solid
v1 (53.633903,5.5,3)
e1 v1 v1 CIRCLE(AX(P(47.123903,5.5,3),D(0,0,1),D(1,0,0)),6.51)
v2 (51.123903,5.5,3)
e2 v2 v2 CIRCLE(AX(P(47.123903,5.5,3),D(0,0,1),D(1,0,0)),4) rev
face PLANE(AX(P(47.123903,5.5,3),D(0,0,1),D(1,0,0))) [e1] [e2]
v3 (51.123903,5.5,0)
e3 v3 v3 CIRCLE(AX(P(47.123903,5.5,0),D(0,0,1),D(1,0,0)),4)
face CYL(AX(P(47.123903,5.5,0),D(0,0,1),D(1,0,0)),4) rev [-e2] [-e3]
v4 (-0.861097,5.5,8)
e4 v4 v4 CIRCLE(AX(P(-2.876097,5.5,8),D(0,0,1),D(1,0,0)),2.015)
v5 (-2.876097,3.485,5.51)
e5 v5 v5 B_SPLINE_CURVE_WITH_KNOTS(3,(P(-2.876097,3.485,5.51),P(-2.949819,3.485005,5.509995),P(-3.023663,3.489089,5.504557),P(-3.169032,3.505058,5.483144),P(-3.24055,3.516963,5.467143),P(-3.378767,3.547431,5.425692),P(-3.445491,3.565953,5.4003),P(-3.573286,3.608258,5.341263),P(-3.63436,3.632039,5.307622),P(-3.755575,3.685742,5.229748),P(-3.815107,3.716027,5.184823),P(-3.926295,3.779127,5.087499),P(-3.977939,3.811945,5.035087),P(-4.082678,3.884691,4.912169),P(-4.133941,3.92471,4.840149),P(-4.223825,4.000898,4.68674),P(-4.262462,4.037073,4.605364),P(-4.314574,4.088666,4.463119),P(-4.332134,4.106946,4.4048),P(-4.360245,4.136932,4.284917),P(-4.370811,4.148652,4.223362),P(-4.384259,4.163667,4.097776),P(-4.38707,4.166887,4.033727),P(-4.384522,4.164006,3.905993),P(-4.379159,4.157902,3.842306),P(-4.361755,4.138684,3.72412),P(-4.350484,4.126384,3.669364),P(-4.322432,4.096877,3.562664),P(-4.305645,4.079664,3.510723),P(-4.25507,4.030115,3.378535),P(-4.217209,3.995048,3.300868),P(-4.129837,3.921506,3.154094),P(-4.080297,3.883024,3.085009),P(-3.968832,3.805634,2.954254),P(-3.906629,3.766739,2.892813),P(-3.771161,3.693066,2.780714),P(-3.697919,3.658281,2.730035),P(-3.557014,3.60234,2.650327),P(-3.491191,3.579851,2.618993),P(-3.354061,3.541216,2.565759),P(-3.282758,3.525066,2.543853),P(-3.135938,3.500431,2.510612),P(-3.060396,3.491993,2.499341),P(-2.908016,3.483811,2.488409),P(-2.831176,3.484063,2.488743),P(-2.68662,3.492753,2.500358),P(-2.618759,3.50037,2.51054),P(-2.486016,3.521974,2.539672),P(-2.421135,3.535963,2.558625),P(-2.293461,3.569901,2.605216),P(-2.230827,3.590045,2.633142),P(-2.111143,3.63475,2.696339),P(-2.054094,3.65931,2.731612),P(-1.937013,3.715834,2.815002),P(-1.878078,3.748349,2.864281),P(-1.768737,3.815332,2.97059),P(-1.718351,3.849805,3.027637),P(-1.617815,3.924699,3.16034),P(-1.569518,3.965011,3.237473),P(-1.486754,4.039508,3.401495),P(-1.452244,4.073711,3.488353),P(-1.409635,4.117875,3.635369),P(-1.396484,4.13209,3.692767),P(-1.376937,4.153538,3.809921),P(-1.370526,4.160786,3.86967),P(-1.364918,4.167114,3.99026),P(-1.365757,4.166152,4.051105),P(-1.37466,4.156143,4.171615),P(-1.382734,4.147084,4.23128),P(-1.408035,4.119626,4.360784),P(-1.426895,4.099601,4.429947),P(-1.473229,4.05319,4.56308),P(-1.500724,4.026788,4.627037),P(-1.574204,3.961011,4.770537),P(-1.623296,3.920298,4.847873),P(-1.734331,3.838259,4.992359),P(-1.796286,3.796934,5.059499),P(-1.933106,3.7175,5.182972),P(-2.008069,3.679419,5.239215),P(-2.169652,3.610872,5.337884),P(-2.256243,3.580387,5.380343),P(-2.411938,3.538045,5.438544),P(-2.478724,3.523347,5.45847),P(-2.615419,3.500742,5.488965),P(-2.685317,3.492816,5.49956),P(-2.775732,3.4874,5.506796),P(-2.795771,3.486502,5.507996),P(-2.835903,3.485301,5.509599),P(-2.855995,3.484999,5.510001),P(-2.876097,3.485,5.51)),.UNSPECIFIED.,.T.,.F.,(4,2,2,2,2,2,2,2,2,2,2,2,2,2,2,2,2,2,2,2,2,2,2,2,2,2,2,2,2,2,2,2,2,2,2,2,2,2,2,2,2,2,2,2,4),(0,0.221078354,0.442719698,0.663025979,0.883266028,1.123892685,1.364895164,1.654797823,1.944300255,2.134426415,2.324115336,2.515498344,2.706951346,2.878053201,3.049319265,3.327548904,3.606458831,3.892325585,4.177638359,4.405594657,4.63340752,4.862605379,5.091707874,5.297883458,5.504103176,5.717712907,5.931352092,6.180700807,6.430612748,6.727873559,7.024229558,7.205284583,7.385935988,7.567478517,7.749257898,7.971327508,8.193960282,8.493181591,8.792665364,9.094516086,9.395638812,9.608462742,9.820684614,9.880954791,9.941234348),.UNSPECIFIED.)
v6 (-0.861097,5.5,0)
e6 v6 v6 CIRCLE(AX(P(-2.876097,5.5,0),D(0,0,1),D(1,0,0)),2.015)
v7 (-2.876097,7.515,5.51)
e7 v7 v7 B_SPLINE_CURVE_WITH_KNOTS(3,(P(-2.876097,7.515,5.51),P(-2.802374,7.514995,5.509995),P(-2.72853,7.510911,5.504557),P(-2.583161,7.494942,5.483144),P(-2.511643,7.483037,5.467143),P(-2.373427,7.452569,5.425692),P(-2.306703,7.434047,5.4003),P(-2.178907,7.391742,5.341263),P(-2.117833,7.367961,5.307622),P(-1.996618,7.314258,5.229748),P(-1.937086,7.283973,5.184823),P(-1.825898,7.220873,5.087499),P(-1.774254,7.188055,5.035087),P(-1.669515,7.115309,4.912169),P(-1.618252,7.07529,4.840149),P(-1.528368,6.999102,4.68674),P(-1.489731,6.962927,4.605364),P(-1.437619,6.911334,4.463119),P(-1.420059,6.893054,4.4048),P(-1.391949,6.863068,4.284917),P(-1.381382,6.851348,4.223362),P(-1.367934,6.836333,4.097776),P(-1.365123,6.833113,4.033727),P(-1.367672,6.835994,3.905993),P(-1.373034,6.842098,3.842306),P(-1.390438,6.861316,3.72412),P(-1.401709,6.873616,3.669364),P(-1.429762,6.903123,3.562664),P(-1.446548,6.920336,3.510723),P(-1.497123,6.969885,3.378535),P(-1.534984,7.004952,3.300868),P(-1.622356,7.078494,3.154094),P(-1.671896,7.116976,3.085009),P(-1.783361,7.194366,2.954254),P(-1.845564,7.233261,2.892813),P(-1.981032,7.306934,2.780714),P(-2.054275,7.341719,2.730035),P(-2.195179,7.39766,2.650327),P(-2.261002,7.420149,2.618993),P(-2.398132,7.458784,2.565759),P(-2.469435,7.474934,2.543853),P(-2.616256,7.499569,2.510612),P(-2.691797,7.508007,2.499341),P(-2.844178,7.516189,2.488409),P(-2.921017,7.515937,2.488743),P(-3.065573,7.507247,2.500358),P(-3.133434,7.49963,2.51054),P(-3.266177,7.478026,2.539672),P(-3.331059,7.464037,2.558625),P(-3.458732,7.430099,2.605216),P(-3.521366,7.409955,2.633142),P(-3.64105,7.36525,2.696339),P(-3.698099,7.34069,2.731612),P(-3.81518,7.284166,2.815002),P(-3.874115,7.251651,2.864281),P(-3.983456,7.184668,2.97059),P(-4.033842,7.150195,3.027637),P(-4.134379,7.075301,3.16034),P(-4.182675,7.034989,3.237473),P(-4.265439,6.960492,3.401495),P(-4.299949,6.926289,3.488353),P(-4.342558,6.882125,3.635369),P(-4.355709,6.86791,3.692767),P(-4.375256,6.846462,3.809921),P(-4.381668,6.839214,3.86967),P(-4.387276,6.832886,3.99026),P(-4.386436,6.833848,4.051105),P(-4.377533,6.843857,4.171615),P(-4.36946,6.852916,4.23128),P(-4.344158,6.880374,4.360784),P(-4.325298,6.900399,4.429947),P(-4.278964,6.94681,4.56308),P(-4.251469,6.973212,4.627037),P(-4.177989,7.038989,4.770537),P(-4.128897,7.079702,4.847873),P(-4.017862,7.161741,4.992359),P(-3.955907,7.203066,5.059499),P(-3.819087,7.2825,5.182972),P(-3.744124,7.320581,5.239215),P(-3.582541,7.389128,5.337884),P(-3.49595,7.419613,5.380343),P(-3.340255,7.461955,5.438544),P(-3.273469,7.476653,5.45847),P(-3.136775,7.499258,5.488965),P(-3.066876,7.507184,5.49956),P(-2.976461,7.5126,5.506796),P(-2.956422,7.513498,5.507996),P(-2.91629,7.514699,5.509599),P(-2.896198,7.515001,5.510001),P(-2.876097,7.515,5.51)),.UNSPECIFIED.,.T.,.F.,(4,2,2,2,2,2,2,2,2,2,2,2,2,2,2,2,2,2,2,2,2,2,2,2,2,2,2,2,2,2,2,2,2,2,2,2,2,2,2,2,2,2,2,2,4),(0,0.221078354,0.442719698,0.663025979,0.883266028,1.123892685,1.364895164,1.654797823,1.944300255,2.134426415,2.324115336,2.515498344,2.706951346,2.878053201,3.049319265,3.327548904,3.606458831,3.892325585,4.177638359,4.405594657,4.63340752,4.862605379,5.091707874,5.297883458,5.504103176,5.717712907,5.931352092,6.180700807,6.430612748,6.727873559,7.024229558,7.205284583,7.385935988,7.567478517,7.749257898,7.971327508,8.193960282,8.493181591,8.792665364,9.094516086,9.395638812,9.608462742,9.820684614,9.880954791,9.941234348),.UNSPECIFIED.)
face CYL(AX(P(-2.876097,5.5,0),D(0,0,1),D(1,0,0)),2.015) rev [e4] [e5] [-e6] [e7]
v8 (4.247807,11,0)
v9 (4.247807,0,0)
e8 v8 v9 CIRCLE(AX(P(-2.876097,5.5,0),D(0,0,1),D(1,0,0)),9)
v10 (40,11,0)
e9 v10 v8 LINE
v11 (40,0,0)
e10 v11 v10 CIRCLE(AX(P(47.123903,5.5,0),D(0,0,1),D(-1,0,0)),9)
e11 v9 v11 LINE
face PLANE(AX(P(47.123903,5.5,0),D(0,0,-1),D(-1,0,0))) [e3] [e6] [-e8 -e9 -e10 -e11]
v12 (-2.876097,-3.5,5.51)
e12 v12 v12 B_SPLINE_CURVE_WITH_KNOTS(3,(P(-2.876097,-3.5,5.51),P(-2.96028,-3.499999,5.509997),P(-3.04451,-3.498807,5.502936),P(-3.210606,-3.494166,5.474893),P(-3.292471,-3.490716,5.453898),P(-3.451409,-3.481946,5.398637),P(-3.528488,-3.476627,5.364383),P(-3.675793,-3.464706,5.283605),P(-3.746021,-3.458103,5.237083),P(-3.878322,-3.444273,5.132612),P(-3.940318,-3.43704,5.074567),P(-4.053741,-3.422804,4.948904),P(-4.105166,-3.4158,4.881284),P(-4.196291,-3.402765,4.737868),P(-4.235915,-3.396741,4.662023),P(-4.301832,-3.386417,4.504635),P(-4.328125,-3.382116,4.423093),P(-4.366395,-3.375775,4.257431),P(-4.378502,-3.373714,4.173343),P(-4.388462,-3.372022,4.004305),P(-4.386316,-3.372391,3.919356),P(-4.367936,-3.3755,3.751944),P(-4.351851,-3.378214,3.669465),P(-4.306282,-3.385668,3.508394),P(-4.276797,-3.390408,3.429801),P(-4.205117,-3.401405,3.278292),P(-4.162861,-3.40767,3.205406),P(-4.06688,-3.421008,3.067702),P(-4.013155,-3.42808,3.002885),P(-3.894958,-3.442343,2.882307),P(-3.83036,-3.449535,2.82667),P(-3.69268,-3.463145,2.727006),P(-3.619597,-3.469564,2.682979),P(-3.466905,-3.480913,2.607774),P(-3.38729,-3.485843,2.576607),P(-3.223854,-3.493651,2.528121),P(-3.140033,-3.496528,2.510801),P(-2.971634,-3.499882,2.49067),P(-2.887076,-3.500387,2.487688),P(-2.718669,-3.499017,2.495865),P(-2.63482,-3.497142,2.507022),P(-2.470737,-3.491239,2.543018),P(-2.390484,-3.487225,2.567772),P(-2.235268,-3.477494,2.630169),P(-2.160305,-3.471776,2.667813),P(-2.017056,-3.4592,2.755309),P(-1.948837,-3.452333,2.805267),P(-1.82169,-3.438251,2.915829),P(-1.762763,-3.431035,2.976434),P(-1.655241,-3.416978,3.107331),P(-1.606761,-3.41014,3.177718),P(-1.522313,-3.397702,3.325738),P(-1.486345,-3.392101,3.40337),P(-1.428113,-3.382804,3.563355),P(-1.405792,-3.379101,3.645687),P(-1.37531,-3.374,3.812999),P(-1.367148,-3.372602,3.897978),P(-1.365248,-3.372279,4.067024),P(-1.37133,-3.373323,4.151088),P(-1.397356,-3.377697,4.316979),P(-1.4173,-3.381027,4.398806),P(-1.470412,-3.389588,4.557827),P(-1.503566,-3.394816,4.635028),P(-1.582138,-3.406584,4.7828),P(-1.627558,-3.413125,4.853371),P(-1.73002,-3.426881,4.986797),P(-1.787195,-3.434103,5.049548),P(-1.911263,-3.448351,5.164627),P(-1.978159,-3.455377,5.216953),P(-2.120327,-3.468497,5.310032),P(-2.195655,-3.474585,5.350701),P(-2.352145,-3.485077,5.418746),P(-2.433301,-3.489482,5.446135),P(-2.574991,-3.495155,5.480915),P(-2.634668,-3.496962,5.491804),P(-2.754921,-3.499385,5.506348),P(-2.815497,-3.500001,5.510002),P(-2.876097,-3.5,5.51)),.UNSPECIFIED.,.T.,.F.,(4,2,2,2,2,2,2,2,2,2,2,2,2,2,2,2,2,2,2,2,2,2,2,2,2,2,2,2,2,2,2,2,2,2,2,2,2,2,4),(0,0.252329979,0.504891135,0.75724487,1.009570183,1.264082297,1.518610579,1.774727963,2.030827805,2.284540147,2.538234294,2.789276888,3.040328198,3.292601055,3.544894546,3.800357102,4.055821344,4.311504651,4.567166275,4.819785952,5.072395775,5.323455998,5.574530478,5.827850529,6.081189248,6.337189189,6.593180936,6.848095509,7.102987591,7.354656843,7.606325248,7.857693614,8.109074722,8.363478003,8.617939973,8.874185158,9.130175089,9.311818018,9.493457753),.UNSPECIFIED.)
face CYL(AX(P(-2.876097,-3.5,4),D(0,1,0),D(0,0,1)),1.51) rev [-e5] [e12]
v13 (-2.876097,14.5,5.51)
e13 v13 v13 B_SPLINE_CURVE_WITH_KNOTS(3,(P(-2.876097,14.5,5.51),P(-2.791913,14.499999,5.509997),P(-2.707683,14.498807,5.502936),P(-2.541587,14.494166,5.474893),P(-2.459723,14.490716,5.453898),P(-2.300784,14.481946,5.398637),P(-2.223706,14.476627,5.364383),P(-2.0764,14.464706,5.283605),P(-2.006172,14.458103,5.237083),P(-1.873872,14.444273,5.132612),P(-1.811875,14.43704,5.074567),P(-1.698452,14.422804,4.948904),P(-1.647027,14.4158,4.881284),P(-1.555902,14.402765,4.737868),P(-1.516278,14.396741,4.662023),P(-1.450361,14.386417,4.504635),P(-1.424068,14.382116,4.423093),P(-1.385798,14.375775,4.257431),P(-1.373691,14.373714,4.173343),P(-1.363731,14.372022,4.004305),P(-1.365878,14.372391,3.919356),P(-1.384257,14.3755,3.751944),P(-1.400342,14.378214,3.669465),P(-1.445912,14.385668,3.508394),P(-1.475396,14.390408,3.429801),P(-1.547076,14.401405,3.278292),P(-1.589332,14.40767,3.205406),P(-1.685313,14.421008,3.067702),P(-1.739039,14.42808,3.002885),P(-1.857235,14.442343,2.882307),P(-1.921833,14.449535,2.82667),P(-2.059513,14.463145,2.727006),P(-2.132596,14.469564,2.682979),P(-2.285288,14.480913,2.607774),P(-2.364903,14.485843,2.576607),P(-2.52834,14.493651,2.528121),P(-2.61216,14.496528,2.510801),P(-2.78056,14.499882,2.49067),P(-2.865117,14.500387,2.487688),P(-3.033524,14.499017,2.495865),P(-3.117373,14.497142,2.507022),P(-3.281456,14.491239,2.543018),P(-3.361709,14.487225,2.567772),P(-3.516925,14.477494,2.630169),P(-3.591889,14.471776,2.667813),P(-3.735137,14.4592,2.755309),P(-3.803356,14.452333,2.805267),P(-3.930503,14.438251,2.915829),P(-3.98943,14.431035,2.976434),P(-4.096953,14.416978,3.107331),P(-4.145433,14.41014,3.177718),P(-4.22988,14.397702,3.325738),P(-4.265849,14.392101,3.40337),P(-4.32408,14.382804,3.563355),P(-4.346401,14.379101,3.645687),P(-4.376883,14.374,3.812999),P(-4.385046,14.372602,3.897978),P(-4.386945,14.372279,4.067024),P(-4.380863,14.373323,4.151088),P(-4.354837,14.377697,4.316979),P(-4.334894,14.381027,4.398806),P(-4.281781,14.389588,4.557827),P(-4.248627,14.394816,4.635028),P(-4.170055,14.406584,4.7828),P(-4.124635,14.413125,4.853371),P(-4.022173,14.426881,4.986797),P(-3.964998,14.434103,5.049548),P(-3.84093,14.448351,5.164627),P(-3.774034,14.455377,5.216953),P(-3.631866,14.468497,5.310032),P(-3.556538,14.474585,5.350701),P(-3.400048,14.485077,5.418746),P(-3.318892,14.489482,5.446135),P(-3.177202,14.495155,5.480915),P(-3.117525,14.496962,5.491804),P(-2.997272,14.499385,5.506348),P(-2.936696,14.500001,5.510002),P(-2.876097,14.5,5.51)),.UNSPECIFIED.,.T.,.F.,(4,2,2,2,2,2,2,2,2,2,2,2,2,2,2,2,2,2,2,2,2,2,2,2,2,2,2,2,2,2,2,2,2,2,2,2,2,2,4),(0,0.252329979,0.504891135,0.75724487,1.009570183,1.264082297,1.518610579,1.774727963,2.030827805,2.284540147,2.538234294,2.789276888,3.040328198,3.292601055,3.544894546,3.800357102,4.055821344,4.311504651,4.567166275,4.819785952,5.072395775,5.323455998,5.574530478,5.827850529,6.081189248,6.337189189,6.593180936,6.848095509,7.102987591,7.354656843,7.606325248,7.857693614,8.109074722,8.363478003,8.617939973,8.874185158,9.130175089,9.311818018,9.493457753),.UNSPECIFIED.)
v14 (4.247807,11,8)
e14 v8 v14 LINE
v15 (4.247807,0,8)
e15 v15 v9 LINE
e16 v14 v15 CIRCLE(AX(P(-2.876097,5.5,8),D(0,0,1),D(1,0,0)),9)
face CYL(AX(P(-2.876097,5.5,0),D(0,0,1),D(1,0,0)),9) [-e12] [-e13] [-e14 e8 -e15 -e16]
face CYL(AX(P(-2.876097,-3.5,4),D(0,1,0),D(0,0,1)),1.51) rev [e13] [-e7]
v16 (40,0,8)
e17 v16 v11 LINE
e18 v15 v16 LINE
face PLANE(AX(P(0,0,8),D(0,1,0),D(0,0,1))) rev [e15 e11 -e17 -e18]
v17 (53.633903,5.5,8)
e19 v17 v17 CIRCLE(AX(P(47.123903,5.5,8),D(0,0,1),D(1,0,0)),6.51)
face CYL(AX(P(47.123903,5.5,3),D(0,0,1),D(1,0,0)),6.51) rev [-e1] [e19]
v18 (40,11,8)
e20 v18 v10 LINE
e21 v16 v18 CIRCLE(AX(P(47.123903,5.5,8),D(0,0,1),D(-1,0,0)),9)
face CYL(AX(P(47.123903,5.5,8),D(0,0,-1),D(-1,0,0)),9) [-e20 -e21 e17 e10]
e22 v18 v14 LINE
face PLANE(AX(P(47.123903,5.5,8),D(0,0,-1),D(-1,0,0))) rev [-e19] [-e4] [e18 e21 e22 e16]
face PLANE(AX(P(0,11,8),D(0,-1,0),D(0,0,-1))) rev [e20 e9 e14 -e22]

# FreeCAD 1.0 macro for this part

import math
import FreeCAD as App
import Part
import Sketcher

doc = App.newDocument("Part")
body = doc.addObject("PartDesign::Body", "Body")

# Sketch on XY plane
sketch1 = body.newObject("Sketcher::SketchObject", "Sketch")
sketch1.AttachmentSupport = (doc.getObject("XY_Plane"), [""])
sketch1.MapMode = "FlatFace"
sketch1.addGeometry(Part.LineSegment(App.Vector(0, 0, 0), App.Vector(40, 0, 0)), False)
sketch1.addGeometry(Part.ArcOfCircle(Part.Circle(App.Vector(47.123903, 5.5, 0), App.Vector(0, 0, 1), 9), math.radians(-142.330113), math.radians(142.330113)), False)
sketch1.addGeometry(Part.LineSegment(App.Vector(40, 11, 0), App.Vector(0, 11, 0)), False)
sketch1.addGeometry(Part.LineSegment(App.Vector(0, 11, 0), App.Vector(0, 0, 0)), False)
sketch1.addConstraint(Sketcher.Constraint("Coincident", 0, 2, 1, 1))
sketch1.addConstraint(Sketcher.Constraint("Coincident", 1, 2, 2, 1))
sketch1.addConstraint(Sketcher.Constraint("Coincident", 2, 2, 3, 1))
sketch1.addConstraint(Sketcher.Constraint("Coincident", 3, 2, 0, 1))
sketch1.addConstraint(Sketcher.Constraint("Horizontal", 0))
sketch1.addConstraint(Sketcher.Constraint("Horizontal", 2))
sketch1.addConstraint(Sketcher.Constraint("Vertical", 3))
sketch1.addConstraint(Sketcher.Constraint("Coincident", 3, 2, -1, 1))
sketch1.addConstraint(Sketcher.Constraint("Vertical", 0, 2, 1, 2))
sketch1.addConstraint(Sketcher.Constraint("Radius", 1, 9.0))
sketch1.addConstraint(Sketcher.Constraint("DistanceX", 0, 1, 0, 2, 40.0))
sketch1.addConstraint(Sketcher.Constraint("DistanceY", 3, 2, 3, 1, 11.0))
pad1 = body.newObject("PartDesign::Pad", "Pad")
pad1.Profile = sketch1
pad1.Length = 8

# Sketch on XY plane
sketch2 = body.newObject("Sketcher::SketchObject", "Sketch001")
sketch2.AttachmentSupport = (doc.getObject("XY_Plane"), [""])
sketch2.MapMode = "FlatFace"
sketch2.AttachmentOffset = App.Placement(App.Vector(0, 0, 8), App.Rotation())
sketch2.addGeometry(Part.Circle(App.Vector(47.123903, 5.5, 0), App.Vector(0, 0, 1), 4), False)
sketch2.addConstraint(Sketcher.Constraint("Diameter", 0, 8.0))
sketch2.addConstraint(Sketcher.Constraint("DistanceY", -1, 1, 0, 3, 5.5))
sketch2.addConstraint(Sketcher.Constraint("DistanceX", -1, 1, 0, 3, 47.123903))
pocket1 = body.newObject("PartDesign::Pocket", "Pocket")
pocket1.Profile = sketch2
pocket1.Type = "ThroughAll"

# Sketch on XY plane
sketch3 = body.newObject("Sketcher::SketchObject", "Sketch002")
sketch3.AttachmentSupport = (doc.getObject("XY_Plane"), [""])
sketch3.MapMode = "FlatFace"
sketch3.AttachmentOffset = App.Placement(App.Vector(0, 0, 8), App.Rotation())
sketch3.addGeometry(Part.Circle(App.Vector(47.123903, 5.5, 0), App.Vector(0, 0, 1), 6.51), False)
sketch3.addConstraint(Sketcher.Constraint("Diameter", 0, 13.02))
sketch3.addConstraint(Sketcher.Constraint("DistanceY", -1, 1, 0, 3, 5.5))
sketch3.addConstraint(Sketcher.Constraint("DistanceX", -1, 1, 0, 3, 47.123903))
pocket2 = body.newObject("PartDesign::Pocket", "Pocket001")
pocket2.Profile = sketch3
pocket2.Length = 5

# Sketch on XY plane
sketch4 = body.newObject("Sketcher::SketchObject", "Sketch003")
sketch4.AttachmentSupport = (doc.getObject("XY_Plane"), [""])
sketch4.MapMode = "FlatFace"
sketch4.AttachmentOffset = App.Placement(App.Vector(0, 0, 8), App.Rotation())
sketch4.addGeometry(Part.Circle(App.Vector(-2.876097, 5.5, 0), App.Vector(0, 0, 1), 9), False)
sketch4.addConstraint(Sketcher.Constraint("Diameter", 0, 18.0))
sketch4.addConstraint(Sketcher.Constraint("DistanceY", -1, 1, 0, 3, 5.5))
sketch4.addConstraint(Sketcher.Constraint("DistanceX", 0, 3, -1, 1, 2.876097))
pad2 = body.newObject("PartDesign::Pad", "Pad001")
pad2.Profile = sketch4
pad2.Length = 8
pad2.Reversed = True

# Sketch on XY plane
sketch5 = body.newObject("Sketcher::SketchObject", "Sketch004")
sketch5.AttachmentSupport = (doc.getObject("XY_Plane"), [""])
sketch5.MapMode = "FlatFace"
sketch5.AttachmentOffset = App.Placement(App.Vector(0, 0, 8), App.Rotation())
sketch5.addGeometry(Part.Circle(App.Vector(-2.876097, 5.5, 0), App.Vector(0, 0, 1), 2.015), False)
sketch5.addConstraint(Sketcher.Constraint("Diameter", 0, 4.03))
sketch5.addConstraint(Sketcher.Constraint("DistanceY", -1, 1, 0, 3, 5.5))
sketch5.addConstraint(Sketcher.Constraint("DistanceX", 0, 3, -1, 1, 2.876097))
pocket3 = body.newObject("PartDesign::Pocket", "Pocket002")
pocket3.Profile = sketch5
pocket3.Type = "ThroughAll"

# Sketch on XZ plane
sketch6 = body.newObject("Sketcher::SketchObject", "Sketch005")
sketch6.AttachmentSupport = (doc.getObject("XZ_Plane"), [""])
sketch6.MapMode = "FlatFace"
sketch6.AttachmentOffset = App.Placement(App.Vector(0, 0, -5.5), App.Rotation())
sketch6.addGeometry(Part.Circle(App.Vector(-2.876097, 4, 0), App.Vector(0, 0, 1), 1.51), False)
sketch6.addConstraint(Sketcher.Constraint("Diameter", 0, 3.02))
sketch6.addConstraint(Sketcher.Constraint("DistanceY", -1, 1, 0, 3, 4.0))
sketch6.addConstraint(Sketcher.Constraint("DistanceX", 0, 3, -1, 1, 2.876097))
pocket4 = body.newObject("PartDesign::Pocket", "Pocket003")
pocket4.Profile = sketch6
pocket4.Type = "ThroughAll"
pocket4.Midplane = True

doc.recompute()
